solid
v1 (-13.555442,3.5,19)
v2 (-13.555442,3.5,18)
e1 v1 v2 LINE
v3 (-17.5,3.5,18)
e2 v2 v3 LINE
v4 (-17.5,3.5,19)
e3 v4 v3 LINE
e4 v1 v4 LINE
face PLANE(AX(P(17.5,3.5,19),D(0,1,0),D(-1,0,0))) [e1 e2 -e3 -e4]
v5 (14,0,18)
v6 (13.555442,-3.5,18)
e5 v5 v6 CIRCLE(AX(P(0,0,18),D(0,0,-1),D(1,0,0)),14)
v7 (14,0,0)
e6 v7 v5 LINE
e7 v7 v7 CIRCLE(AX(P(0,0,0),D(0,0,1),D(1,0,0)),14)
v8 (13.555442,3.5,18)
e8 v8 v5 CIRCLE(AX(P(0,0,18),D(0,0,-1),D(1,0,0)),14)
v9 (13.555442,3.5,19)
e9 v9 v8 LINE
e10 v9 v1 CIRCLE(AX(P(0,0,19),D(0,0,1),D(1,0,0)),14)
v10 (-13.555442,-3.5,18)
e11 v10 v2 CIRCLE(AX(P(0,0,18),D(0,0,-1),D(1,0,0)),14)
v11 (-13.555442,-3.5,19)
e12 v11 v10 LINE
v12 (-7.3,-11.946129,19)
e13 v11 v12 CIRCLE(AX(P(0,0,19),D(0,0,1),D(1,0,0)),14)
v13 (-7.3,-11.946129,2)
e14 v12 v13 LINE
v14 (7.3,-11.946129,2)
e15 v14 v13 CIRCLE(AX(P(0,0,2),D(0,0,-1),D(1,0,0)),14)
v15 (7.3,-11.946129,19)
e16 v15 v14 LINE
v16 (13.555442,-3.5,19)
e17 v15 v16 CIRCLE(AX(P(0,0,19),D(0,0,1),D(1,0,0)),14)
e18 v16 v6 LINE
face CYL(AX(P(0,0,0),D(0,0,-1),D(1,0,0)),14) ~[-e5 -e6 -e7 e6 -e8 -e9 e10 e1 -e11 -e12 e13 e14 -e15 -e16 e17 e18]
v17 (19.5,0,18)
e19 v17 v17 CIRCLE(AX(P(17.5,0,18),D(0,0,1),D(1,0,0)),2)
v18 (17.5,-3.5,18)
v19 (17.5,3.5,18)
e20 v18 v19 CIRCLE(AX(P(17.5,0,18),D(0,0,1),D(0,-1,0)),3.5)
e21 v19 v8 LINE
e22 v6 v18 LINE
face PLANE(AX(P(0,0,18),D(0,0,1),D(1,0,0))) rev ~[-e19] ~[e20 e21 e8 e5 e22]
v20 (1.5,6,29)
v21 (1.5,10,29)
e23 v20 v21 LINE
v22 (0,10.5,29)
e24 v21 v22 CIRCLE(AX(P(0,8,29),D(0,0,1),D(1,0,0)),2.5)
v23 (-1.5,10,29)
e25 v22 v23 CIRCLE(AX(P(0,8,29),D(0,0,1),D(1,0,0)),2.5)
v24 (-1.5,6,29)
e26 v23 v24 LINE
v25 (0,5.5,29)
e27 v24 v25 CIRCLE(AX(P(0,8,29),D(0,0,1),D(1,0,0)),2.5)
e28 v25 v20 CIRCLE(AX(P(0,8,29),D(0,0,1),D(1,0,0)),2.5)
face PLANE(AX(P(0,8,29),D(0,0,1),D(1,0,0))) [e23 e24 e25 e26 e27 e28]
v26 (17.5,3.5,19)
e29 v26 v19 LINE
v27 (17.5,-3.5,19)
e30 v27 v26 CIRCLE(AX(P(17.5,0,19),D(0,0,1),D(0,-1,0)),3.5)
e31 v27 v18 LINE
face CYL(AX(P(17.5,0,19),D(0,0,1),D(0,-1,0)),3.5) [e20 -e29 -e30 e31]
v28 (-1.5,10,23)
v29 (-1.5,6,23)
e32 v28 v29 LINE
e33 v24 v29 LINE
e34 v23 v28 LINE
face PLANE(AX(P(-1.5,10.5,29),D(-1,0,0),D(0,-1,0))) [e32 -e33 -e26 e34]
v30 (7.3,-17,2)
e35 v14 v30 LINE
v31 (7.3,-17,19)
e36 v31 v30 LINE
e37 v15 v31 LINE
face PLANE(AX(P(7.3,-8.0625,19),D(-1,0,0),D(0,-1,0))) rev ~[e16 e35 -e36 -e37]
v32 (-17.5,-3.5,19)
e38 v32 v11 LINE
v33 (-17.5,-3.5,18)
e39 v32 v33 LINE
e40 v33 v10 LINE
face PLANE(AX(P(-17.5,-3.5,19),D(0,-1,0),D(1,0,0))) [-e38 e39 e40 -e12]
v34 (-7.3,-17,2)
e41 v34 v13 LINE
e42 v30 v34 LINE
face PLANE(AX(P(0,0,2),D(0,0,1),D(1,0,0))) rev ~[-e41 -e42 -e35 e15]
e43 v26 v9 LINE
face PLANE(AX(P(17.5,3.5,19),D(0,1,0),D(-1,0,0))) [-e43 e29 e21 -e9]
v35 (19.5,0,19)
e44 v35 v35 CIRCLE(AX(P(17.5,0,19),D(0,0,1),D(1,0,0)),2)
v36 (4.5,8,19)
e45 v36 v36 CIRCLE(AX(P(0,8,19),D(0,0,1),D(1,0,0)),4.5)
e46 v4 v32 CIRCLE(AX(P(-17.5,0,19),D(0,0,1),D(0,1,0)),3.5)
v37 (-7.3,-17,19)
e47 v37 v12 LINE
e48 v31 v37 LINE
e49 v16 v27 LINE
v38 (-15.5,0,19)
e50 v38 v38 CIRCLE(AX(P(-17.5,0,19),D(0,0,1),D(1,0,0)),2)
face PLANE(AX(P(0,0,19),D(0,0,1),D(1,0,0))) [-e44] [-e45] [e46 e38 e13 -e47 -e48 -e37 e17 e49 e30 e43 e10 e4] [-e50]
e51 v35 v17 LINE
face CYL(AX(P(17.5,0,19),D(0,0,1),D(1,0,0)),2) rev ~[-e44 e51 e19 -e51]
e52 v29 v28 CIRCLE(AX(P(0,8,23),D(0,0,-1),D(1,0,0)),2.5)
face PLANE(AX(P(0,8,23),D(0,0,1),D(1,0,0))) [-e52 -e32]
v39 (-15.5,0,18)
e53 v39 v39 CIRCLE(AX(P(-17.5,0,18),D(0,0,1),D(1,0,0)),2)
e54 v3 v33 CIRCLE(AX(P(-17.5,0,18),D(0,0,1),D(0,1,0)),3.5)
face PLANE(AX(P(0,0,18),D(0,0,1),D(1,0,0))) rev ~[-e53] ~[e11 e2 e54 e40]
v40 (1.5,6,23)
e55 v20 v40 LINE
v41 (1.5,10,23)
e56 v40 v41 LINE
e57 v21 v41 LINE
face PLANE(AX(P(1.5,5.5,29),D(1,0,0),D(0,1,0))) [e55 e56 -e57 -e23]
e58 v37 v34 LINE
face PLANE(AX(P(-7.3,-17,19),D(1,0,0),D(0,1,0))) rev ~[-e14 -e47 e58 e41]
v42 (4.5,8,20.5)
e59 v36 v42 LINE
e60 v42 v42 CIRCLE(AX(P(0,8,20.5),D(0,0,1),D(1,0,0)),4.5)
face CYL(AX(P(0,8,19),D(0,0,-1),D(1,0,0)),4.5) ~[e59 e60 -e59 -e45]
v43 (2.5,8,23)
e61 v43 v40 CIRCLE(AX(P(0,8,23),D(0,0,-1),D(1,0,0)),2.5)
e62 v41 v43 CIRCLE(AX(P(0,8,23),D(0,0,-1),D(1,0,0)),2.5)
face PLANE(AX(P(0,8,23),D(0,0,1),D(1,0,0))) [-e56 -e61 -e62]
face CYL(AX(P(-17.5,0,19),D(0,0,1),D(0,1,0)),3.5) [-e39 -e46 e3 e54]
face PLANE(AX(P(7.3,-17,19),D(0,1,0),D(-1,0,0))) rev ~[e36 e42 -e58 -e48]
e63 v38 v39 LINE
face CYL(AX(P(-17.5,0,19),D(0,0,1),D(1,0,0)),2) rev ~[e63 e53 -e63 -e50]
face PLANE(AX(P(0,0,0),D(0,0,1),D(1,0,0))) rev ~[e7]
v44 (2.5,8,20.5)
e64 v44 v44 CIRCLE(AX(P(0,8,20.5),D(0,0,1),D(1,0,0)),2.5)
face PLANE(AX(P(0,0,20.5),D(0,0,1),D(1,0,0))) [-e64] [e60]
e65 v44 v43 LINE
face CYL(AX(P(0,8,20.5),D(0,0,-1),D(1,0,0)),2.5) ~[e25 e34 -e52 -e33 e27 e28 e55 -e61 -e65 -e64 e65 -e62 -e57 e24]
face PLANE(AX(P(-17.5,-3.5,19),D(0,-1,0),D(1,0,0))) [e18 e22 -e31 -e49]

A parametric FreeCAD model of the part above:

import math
import FreeCAD as App
import Part
import Sketcher
Q = App.Units.Quantity


def add_polygon(sketch, points):
    """Adds a closed chain of lines whose ends are joined by coincident constraints."""
    first, n = sketch.GeometryCount, len(points)
    for a, b in zip(points, points[1:] + points[:1]):
        sketch.addGeometry(Part.LineSegment(App.Vector(*a, 0), App.Vector(*b, 0)), False)
    for i in range(n):
        sketch.addConstraint(Sketcher.Constraint("Coincident", first + i, 2, first + (i + 1) % n, 1))

doc = App.newDocument("Part")
params = doc.addObject("Spreadsheet::Sheet", "Params")
for row, (alias, value) in enumerate([
    ("sketch1_diameter", "28 mm"),
    ("pad1_length", "19 mm"),
    ("sketch2_diameter", "4 mm"),
    ("sketch2_radius", "3.5 mm"),
    ("sketch2_width", "35 mm"),
    ("pad2_length", "1 mm"),
    ("sketch3_diameter", "9 mm"),
    ("pad3_length", "1.5 mm"),
    ("sketch4_diameter", "5 mm"),
    ("pad4_length", "8.5 mm"),
    ("sketch5_width", "6 mm"),
    ("sketch5_width2", "3 mm"),
    ("sketch5_height", "5 mm"),
    ("pocket1_length", "6 mm"),
    ("sketch6_width", "14.6 mm"),
    ("pad5_length", "17 mm"),
], start=1):
    params.set(f"A{row}", alias)
    params.set(f"B{row}", "=" + value)
    params.setAlias(f"B{row}", alias)

body = doc.addObject("PartDesign::Body", "Body")

# Sketch on XY plane
sketch1 = doc.addObject("Sketcher::SketchObject", "Sketch")
body.addObject(sketch1)
sketch1.AttachmentSupport = (doc.XY_Plane, [""])
sketch1.MapMode = "FlatFace"
sketch1.addGeometry(Part.Circle(App.Vector(0, 0, 0), App.Vector(0, 0, 1), 14), False)
sketch1.addConstraint([
    Sketcher.Constraint("Coincident", 0, 3, -1, 1),
    Sketcher.Constraint("Diameter", 0, Q("28 mm")),
])
sketch1.setExpression("Constraints[1]", "Params.sketch1_diameter")
pad1 = doc.addObject("PartDesign::Pad", "Pad")
body.addObject(pad1)
pad1.Profile = sketch1
pad1.setExpression("Length", "Params.pad1_length")

# Sketch on XY plane
sketch2 = doc.addObject("Sketcher::SketchObject", "Sketch001")
body.addObject(sketch2)
sketch2.AttachmentSupport = (doc.XY_Plane, [""])
sketch2.MapMode = "FlatFace"
sketch2.AttachmentOffset = App.Placement(App.Vector(0, 0, 19), App.Rotation())
sketch2.addGeometry([
    Part.ArcOfCircle(Part.Circle(App.Vector(-17.5, 0, 0), App.Vector(0, 0, 1), 3.5), math.radians(90), math.radians(270)),  # 0
    Part.LineSegment(App.Vector(-17.5, -3.5, 0), App.Vector(17.5, -3.5, 0)),  # 1
    Part.ArcOfCircle(Part.Circle(App.Vector(17.5, 0, 0), App.Vector(0, 0, 1), 3.5), math.radians(-90), math.radians(90)),  # 2
    Part.LineSegment(App.Vector(17.5, 3.5, 0), App.Vector(-17.5, 3.5, 0)),  # 3
    Part.Circle(App.Vector(-17.5, 0, 0), App.Vector(0, 0, 1), 2),  # 4
    Part.Circle(App.Vector(17.5, 0, 0), App.Vector(0, 0, 1), 2),  # 5
], False)
sketch2.addConstraint([
    Sketcher.Constraint("Tangent", 0, 2, 1, 1),
    Sketcher.Constraint("Tangent", 1, 2, 2, 1),
    Sketcher.Constraint("Tangent", 2, 2, 3, 1),
    Sketcher.Constraint("Tangent", 3, 2, 0, 1),
    Sketcher.Constraint("Horizontal", 1),
    Sketcher.Constraint("Horizontal", 3),
    Sketcher.Constraint("Coincident", 4, 3, 0, 3),
    Sketcher.Constraint("Coincident", 5, 3, 2, 3),
    Sketcher.Constraint("Equal", 4, 5),
    Sketcher.Constraint("Symmetric", 0, 3, 2, 3, -1, 1),
    Sketcher.Constraint("Diameter", 4, Q("4 mm")),
    Sketcher.Constraint("Radius", 0, Q("3.5 mm")),
    Sketcher.Constraint("DistanceX", 1, 1, 1, 2, Q("35 mm")),
])
sketch2.setExpression("Constraints[10]", "Params.sketch2_diameter")
sketch2.setExpression("Constraints[11]", "Params.sketch2_radius")
sketch2.setExpression("Constraints[12]", "Params.sketch2_width")
pad2 = doc.addObject("PartDesign::Pad", "Pad001")
body.addObject(pad2)
pad2.Profile = sketch2
pad2.setExpression("Length", "Params.pad2_length")
pad2.Reversed = True

# Sketch on XY plane
sketch3 = doc.addObject("Sketcher::SketchObject", "Sketch002")
body.addObject(sketch3)
sketch3.AttachmentSupport = (doc.XY_Plane, [""])
sketch3.MapMode = "FlatFace"
sketch3.AttachmentOffset = App.Placement(App.Vector(0, 0, 19), App.Rotation())
sketch3.addGeometry(Part.Circle(App.Vector(0, 8, 0), App.Vector(0, 0, 1), 4.5), False)
sketch3.addConstraint([
    Sketcher.Constraint("PointOnObject", 0, 3, -2),
    Sketcher.Constraint("Diameter", 0, Q("9 mm")),
    Sketcher.Constraint("DistanceY", -1, 1, 0, 3, Q("8 mm")),
])
sketch3.setExpression("Constraints[1]", "Params.sketch3_diameter")
pad3 = doc.addObject("PartDesign::Pad", "Pad002")
body.addObject(pad3)
pad3.Profile = sketch3
pad3.setExpression("Length", "Params.pad3_length")

# Sketch on XY plane
sketch4 = doc.addObject("Sketcher::SketchObject", "Sketch003")
body.addObject(sketch4)
sketch4.AttachmentSupport = (doc.XY_Plane, [""])
sketch4.MapMode = "FlatFace"
sketch4.AttachmentOffset = App.Placement(App.Vector(0, 0, 20.5), App.Rotation())
sketch4.addGeometry(Part.Circle(App.Vector(0, 8, 0), App.Vector(0, 0, 1), 2.5), False)
sketch4.addConstraint([
    Sketcher.Constraint("PointOnObject", 0, 3, -2),
    Sketcher.Constraint("Diameter", 0, Q("5 mm")),
    Sketcher.Constraint("DistanceY", -1, 1, 0, 3, Q("8 mm")),
])
sketch4.setExpression("Constraints[1]", "Params.sketch4_diameter")
pad4 = doc.addObject("PartDesign::Pad", "Pad003")
body.addObject(pad4)
pad4.Profile = sketch4
pad4.setExpression("Length", "Params.pad4_length")

# Sketch on XY plane
sketch5 = doc.addObject("Sketcher::SketchObject", "Sketch004")
body.addObject(sketch5)
sketch5.AttachmentSupport = (doc.XY_Plane, [""])
sketch5.MapMode = "FlatFace"
sketch5.AttachmentOffset = App.Placement(App.Vector(0, 0, 29), App.Rotation())
add_polygon(sketch5, [(-3, 11), (-3, 5), (3, 5), (3, 11)])  # lines 0-3
add_polygon(sketch5, [(1.5, 5.5), (-1.5, 5.5), (-1.5, 10.5), (1.5, 10.5)])  # lines 4-7
sketch5.addConstraint([
    Sketcher.Constraint("Vertical", 0),
    Sketcher.Constraint("Horizontal", 1),
    Sketcher.Constraint("Vertical", 2),
    Sketcher.Constraint("Horizontal", 3),
    Sketcher.Constraint("Horizontal", 4),
    Sketcher.Constraint("Vertical", 5),
    Sketcher.Constraint("Horizontal", 6),
    Sketcher.Constraint("Vertical", 7),
    Sketcher.Constraint("Equal", 3, 0),
    Sketcher.Constraint("DistanceX", 1, 1, 1, 2, Q("6 mm")),
    Sketcher.Constraint("DistanceX", 4, 2, 4, 1, Q("3 mm")),
    Sketcher.Constraint("DistanceY", 5, 1, 5, 2, Q("5 mm")),
    Sketcher.Constraint("DistanceX", 0, 2, -1, 1, Q("3 mm")),
    Sketcher.Constraint("DistanceY", -1, 1, 0, 2, Q("5 mm")),
    Sketcher.Constraint("DistanceX", 4, 2, -1, 1, Q("1.5 mm")),
    Sketcher.Constraint("DistanceY", -1, 1, 4, 2, Q("5.5 mm")),
])
sketch5.setExpression("Constraints[17]", "Params.sketch5_width")
sketch5.setExpression("Constraints[18]", "Params.sketch5_width2")
sketch5.setExpression("Constraints[19]", "Params.sketch5_height")
pocket1 = doc.addObject("PartDesign::Pocket", "Pocket")
body.addObject(pocket1)
pocket1.Profile = sketch5
pocket1.setExpression("Length", "Params.pocket1_length")

# Sketch on XY plane
sketch6 = doc.addObject("Sketcher::SketchObject", "Sketch005")
body.addObject(sketch6)
sketch6.AttachmentSupport = (doc.XY_Plane, [""])
sketch6.MapMode = "FlatFace"
sketch6.AttachmentOffset = App.Placement(App.Vector(0, 0, 19), App.Rotation())
add_polygon(sketch6, [(7, -8), (-7, -8), (-7, -17), (7, -17)])  # lines 0-3
sketch6.addConstraint([
    Sketcher.Constraint("Horizontal", 0),
    Sketcher.Constraint("Vertical", 1),
    Sketcher.Constraint("Horizontal", 2),
    Sketcher.Constraint("Vertical", 3),
    Sketcher.Constraint("DistanceX", 0, 2, 0, 1, Q("14.6 mm")),
    Sketcher.Constraint("DistanceY", 1, 2, -1, 1, Q("17 mm")),
    Sketcher.Constraint("DistanceX", 0, 2, -1, 1, Q("7.3 mm")),
    Sketcher.Constraint("DistanceY", 1, 2, 1, 1, Q("8.9375 mm")),
])
sketch6.setExpression("Constraints[8]", "Params.sketch6_width")
pad5 = doc.addObject("PartDesign::Pad", "Pad004")
body.addObject(pad5)
pad5.Profile = sketch6
pad5.setExpression("Length", "Params.pad5_length")
pad5.Reversed = True

doc.recompute()
